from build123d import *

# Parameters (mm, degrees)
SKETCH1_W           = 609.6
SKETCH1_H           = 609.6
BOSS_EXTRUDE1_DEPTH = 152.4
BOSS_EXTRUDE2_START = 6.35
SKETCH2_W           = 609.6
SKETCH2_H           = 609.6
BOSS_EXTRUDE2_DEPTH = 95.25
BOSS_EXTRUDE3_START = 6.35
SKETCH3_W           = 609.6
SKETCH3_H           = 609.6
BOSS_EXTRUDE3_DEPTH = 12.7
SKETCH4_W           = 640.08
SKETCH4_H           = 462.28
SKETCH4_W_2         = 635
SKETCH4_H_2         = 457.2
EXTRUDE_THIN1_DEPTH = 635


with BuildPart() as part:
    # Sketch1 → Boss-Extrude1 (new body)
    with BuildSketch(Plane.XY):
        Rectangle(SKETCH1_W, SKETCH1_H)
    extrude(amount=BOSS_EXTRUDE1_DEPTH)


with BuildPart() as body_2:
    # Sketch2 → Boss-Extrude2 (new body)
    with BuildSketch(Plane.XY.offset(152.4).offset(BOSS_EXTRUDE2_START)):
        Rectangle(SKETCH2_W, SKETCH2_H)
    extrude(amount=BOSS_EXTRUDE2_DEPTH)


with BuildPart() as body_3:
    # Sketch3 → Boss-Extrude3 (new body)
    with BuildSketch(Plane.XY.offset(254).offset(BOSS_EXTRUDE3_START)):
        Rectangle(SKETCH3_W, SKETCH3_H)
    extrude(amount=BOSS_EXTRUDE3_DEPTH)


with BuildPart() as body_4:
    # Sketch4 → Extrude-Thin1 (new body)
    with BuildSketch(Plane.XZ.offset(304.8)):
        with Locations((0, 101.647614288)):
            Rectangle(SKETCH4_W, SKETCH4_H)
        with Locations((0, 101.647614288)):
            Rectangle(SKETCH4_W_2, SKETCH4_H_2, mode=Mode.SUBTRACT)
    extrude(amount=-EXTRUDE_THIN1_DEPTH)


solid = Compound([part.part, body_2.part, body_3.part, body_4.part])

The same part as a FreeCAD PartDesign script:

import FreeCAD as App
import Part
import Sketcher
Q = App.Units.Quantity


def add_polygon(sketch, points):
    """Adds a closed chain of lines whose ends are joined by coincident constraints."""
    first, n = sketch.GeometryCount, len(points)
    for a, b in zip(points, points[1:] + points[:1]):
        sketch.addGeometry(Part.LineSegment(App.Vector(*a, 0), App.Vector(*b, 0)), False)
    for i in range(n):
        sketch.addConstraint(Sketcher.Constraint("Coincident", first + i, 2, first + (i + 1) % n, 1))

doc = App.newDocument("Part")
body = doc.addObject("PartDesign::Body", "Body")

sketch1 = body.newObject("Sketcher::SketchObject", "Sketch")
sketch1.AttachmentSupport = (doc.getObject("XY_Plane"), [""])
sketch1.MapMode = "FlatFace"
add_polygon(sketch1, [(-305, 305), (-305, -305), (305, -305), (305, 305)])
sketch1.addConstraint(Sketcher.Constraint("Vertical", 0))
sketch1.addConstraint(Sketcher.Constraint("Horizontal", 1))
sketch1.addConstraint(Sketcher.Constraint("Vertical", 2))
sketch1.addConstraint(Sketcher.Constraint("Horizontal", 3))
sketch1.addConstraint(Sketcher.Constraint("Symmetric", 0, 2, 2, 2, -1, 1))
sketch1.addConstraint(Sketcher.Constraint("Equal", 3, 0))
sketch1.addConstraint(Sketcher.Constraint("DistanceX", 1, 1, 1, 2, Q("24 in")))
pad1 = body.newObject("PartDesign::Pad", "Pad")
pad1.Profile = sketch1
pad1.Length = Q("6 in")
body2 = doc.addObject("PartDesign::Body", "Body001")

sketch2 = body2.newObject("Sketcher::SketchObject", "Sketch001")
sketch2.AttachmentSupport = (doc.getObject("XY_Plane001"), [""])
sketch2.MapMode = "FlatFace"
sketch2.AttachmentOffset = App.Placement(App.Vector(0, 0, 6.25 * 25.4), App.Rotation())
add_polygon(sketch2, [(-305, 305), (-305, -305), (305, -305), (305, 305)])
sketch2.addConstraint(Sketcher.Constraint("Vertical", 0))
sketch2.addConstraint(Sketcher.Constraint("Horizontal", 1))
sketch2.addConstraint(Sketcher.Constraint("Vertical", 2))
sketch2.addConstraint(Sketcher.Constraint("Horizontal", 3))
sketch2.addConstraint(Sketcher.Constraint("Symmetric", 0, 2, 2, 2, -1, 1))
sketch2.addConstraint(Sketcher.Constraint("Equal", 3, 0))
sketch2.addConstraint(Sketcher.Constraint("DistanceX", 1, 1, 1, 2, Q("24 in")))
pad2 = body2.newObject("PartDesign::Pad", "Pad001")
pad2.Profile = sketch2
pad2.Length = Q("3.75 in")
body3 = doc.addObject("PartDesign::Body", "Body002")

sketch3 = body3.newObject("Sketcher::SketchObject", "Sketch002")
sketch3.AttachmentSupport = (doc.getObject("XY_Plane002"), [""])
sketch3.MapMode = "FlatFace"
sketch3.AttachmentOffset = App.Placement(App.Vector(0, 0, 10.25 * 25.4), App.Rotation())
add_polygon(sketch3, [(-305, 305), (-305, -305), (305, -305), (305, 305)])
sketch3.addConstraint(Sketcher.Constraint("Vertical", 0))
sketch3.addConstraint(Sketcher.Constraint("Horizontal", 1))
sketch3.addConstraint(Sketcher.Constraint("Vertical", 2))
sketch3.addConstraint(Sketcher.Constraint("Horizontal", 3))
sketch3.addConstraint(Sketcher.Constraint("Symmetric", 0, 2, 2, 2, -1, 1))
sketch3.addConstraint(Sketcher.Constraint("Equal", 3, 0))
sketch3.addConstraint(Sketcher.Constraint("DistanceX", 1, 1, 1, 2, Q("24 in")))
pad3 = body3.newObject("PartDesign::Pad", "Pad002")
pad3.Profile = sketch3
pad3.Length = Q("0.5 in")
body4 = doc.addObject("PartDesign::Body", "Body003")

sketch4 = body4.newObject("Sketcher::SketchObject", "Sketch003")
sketch4.AttachmentSupport = (doc.getObject("XZ_Plane003"), [""])
sketch4.MapMode = "FlatFace"
sketch4.AttachmentOffset = App.Placement(App.Vector(0, 0, 12 * 25.4), App.Rotation())
add_polygon(sketch4, [(-320, 333), (-320, -129), (320, -129), (320, 333)])
add_polygon(sketch4, [(318, -127), (-318, -127), (-318, 330), (318, 330)])
sketch4.addConstraint(Sketcher.Constraint("Vertical", 0))
sketch4.addConstraint(Sketcher.Constraint("Horizontal", 1))
sketch4.addConstraint(Sketcher.Constraint("Vertical", 2))
sketch4.addConstraint(Sketcher.Constraint("Horizontal", 3))
sketch4.addConstraint(Sketcher.Constraint("Horizontal", 4))
sketch4.addConstraint(Sketcher.Constraint("Vertical", 5))
sketch4.addConstraint(Sketcher.Constraint("Horizontal", 6))
sketch4.addConstraint(Sketcher.Constraint("Vertical", 7))
sketch4.addConstraint(Sketcher.Constraint("DistanceX", 4, 2, 4, 1, Q("25 in")))
sketch4.addConstraint(Sketcher.Constraint("DistanceY", 5, 1, 5, 2, Q("18 in")))
sketch4.addConstraint(Sketcher.Constraint("DistanceX", 1, 1, 1, 2, Q("25.2 in")))
sketch4.addConstraint(Sketcher.Constraint("DistanceY", 0, 2, 0, 1, Q("18.2 in")))
sketch4.addConstraint(Sketcher.Constraint("DistanceX", 0, 2, -1, 1, Q("12.6 in")))
sketch4.addConstraint(Sketcher.Constraint("DistanceX", 4, 2, -1, 1, Q("12.5 in")))
sketch4.addConstraint(Sketcher.Constraint("DistanceY", 0, 2, 4, 2, Q("0.1 in")))
sketch4.addConstraint(Sketcher.Constraint("DistanceY", 0, 2, -1, 1, Q("129.492386 mm")))
pad4 = body4.newObject("PartDesign::Pad", "Pad003")
pad4.Profile = sketch4
pad4.Length = Q("25 in")
pad4.Reversed = True

doc.recompute()
